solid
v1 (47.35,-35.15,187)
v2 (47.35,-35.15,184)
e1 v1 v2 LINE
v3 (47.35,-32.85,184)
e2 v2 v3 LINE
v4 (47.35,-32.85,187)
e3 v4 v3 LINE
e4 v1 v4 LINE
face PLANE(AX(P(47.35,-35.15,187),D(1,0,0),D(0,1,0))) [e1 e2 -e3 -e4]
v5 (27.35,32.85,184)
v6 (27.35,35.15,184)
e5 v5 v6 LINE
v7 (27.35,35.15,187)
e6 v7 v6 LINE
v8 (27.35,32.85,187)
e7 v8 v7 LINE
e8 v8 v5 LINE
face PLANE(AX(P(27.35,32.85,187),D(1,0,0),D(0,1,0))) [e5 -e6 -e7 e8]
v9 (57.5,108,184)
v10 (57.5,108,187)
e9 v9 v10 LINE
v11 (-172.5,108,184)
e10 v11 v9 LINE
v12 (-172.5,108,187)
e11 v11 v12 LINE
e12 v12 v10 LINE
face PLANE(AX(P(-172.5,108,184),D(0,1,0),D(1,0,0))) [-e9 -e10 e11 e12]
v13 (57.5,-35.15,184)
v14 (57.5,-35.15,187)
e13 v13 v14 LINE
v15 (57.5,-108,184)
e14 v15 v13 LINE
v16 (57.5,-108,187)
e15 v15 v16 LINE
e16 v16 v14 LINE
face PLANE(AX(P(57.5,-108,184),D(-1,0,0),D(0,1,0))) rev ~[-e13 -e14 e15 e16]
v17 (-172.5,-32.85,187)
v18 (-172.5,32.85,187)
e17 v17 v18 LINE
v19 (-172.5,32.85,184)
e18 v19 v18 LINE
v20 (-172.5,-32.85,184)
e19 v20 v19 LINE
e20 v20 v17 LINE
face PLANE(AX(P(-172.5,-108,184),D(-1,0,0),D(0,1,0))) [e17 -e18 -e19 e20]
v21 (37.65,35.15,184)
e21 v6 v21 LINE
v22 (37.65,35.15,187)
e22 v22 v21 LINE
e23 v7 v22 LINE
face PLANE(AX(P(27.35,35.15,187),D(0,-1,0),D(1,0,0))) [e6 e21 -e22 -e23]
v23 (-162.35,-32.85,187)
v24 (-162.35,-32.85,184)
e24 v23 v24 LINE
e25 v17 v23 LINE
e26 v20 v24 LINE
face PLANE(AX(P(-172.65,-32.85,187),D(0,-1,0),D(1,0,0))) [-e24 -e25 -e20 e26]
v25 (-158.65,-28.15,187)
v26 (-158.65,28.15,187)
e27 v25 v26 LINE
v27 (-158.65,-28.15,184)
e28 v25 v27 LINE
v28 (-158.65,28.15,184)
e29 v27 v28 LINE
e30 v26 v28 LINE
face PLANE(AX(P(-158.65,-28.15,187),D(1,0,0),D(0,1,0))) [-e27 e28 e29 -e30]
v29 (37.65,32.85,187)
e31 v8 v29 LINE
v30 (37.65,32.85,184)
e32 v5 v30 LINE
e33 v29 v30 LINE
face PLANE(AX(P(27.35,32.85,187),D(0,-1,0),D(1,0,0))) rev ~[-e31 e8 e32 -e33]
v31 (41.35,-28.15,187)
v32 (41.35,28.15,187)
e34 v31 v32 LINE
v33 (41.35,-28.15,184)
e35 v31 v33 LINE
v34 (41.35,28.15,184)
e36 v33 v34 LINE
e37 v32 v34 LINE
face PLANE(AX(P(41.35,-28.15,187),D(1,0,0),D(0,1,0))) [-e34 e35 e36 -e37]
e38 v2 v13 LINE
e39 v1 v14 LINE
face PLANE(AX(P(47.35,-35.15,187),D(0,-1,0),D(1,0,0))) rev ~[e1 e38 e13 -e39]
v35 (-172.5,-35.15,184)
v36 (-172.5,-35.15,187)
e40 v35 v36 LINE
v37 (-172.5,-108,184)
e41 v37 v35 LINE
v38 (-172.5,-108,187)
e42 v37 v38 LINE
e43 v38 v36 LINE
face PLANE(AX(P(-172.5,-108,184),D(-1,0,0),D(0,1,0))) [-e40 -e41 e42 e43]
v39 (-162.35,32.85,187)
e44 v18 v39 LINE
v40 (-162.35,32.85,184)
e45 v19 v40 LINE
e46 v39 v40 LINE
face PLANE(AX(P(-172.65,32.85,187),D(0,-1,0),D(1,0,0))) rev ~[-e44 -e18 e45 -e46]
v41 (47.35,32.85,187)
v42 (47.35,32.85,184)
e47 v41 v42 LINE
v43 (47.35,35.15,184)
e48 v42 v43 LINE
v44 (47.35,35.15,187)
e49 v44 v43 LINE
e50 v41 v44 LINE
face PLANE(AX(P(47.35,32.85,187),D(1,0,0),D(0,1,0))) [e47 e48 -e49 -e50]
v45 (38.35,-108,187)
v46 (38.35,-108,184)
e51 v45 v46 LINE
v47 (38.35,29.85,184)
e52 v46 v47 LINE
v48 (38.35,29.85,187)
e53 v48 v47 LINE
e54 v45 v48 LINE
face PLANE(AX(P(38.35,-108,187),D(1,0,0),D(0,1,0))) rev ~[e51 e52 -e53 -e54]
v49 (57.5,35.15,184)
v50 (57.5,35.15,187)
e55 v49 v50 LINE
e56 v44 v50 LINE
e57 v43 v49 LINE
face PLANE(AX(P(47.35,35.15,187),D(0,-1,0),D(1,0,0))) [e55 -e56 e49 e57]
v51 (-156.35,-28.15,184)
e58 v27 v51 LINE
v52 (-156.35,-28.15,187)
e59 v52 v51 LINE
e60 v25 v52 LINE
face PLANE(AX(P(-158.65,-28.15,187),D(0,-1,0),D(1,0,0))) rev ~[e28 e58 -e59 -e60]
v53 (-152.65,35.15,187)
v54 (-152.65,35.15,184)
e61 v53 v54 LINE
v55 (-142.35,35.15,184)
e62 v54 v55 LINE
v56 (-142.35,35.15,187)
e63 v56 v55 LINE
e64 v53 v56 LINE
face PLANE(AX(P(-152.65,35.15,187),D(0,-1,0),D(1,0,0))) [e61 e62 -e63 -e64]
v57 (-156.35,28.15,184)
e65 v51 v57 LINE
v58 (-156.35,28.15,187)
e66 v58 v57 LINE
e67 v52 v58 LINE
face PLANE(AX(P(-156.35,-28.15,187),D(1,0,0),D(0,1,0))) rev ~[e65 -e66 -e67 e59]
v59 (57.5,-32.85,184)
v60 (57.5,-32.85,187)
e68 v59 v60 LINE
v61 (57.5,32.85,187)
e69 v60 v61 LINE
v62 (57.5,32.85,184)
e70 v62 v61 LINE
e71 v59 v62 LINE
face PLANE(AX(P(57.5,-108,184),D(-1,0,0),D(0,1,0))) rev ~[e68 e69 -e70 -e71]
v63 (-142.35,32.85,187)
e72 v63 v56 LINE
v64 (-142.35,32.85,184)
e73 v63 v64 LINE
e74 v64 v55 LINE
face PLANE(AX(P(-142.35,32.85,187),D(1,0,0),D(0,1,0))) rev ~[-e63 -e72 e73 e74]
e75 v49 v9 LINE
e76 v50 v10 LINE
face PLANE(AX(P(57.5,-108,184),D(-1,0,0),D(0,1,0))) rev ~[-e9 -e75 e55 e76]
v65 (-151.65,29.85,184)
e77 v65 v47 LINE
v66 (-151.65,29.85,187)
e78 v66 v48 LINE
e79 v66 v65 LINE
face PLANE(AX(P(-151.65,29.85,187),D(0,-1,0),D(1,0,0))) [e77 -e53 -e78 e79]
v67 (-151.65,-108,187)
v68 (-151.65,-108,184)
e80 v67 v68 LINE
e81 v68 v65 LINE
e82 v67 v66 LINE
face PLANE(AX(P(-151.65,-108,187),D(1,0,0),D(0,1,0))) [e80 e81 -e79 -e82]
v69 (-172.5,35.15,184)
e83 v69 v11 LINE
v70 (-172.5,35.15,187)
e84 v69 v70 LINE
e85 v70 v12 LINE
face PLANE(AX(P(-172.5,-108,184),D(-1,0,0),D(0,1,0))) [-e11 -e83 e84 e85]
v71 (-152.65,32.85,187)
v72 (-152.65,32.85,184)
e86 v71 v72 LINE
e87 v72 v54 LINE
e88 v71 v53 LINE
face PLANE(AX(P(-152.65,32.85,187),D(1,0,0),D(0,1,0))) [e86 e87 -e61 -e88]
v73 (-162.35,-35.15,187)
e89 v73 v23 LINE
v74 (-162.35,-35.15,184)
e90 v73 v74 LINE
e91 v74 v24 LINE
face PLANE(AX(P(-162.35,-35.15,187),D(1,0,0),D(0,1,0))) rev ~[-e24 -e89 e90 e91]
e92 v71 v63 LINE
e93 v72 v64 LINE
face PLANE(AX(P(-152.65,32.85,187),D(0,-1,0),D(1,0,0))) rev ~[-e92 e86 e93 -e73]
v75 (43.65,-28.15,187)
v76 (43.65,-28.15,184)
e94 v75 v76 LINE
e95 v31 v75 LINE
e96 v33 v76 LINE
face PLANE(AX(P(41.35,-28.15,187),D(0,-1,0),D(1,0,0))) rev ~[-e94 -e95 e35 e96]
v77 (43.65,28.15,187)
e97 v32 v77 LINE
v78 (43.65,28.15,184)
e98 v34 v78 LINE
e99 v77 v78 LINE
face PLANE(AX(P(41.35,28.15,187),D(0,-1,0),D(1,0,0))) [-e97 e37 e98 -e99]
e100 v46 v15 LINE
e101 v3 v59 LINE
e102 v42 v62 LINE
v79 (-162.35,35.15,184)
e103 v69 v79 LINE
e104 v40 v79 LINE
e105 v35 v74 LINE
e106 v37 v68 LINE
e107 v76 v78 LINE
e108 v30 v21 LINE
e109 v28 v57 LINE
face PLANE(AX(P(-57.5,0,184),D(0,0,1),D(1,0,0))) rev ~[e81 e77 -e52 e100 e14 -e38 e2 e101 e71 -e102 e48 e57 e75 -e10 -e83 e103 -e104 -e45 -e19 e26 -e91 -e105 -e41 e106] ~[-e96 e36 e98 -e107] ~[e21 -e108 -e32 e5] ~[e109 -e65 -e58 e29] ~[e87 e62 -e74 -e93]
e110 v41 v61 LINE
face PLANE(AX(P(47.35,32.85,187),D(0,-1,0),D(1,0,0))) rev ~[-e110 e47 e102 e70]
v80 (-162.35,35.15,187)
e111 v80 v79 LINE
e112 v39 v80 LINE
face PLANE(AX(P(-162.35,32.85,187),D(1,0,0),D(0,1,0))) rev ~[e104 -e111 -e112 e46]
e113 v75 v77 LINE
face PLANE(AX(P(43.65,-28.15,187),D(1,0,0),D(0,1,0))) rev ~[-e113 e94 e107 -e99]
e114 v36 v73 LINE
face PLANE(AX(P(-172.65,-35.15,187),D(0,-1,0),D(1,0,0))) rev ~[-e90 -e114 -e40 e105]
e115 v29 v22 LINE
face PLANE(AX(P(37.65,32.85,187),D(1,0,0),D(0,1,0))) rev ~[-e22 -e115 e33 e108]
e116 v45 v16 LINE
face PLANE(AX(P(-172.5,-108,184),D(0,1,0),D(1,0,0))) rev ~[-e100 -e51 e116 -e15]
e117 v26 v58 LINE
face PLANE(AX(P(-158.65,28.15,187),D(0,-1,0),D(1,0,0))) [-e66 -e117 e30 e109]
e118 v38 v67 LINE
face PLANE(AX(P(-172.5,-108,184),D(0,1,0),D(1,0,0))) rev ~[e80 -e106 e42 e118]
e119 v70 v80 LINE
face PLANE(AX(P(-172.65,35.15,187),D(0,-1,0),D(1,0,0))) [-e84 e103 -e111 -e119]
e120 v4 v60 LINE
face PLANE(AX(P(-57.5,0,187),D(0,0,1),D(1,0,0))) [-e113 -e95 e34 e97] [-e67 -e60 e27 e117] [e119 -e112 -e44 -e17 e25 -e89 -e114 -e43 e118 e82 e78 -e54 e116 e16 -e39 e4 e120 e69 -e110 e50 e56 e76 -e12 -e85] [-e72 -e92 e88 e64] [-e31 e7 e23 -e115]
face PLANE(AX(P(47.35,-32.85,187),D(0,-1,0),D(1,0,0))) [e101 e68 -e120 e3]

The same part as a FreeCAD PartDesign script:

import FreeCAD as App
import Part
import Sketcher

V = App.Vector


def add_polygon(sketch, points):
    """Adds a closed chain of lines whose ends are joined by coincident constraints."""
    first, n = sketch.GeometryCount, len(points)
    for a, b in zip(points, points[1:] + points[:1]):
        sketch.addGeometry(Part.LineSegment(App.Vector(*a, 0), App.Vector(*b, 0)), False)
    for i in range(n):
        sketch.addConstraint(Sketcher.Constraint("Coincident", first + i, 2, first + (i + 1) % n, 1))

doc = App.newDocument("Part")
body = doc.addObject("PartDesign::Body", "Body")

# Sketch on XY plane
sketch1 = body.newObject("Sketcher::SketchObject", "Sketch")
sketch1.AttachmentSupport = (doc.getObject("XY_Plane"), [""])
sketch1.MapMode = "FlatFace"
sketch1.AttachmentOffset = App.Placement(V(0, 0, 184), App.Rotation())
add_polygon(sketch1, [(-172, 108), (-172, -108), (58, -108), (58, 108)])  # lines 0-3
sketch1.addConstraint([
    Sketcher.Constraint("Vertical", 0),
    Sketcher.Constraint("Horizontal", 1),
    Sketcher.Constraint("Vertical", 2),
    Sketcher.Constraint("Horizontal", 3),
    Sketcher.Constraint("DistanceX", 1, 1, 1, 2, 230.0),
    Sketcher.Constraint("DistanceY", 0, 2, 0, 1, 216.0),
    Sketcher.Constraint("DistanceY", 0, 2, -1, 1, 108.0),
    Sketcher.Constraint("DistanceX", 0, 2, -1, 1, 172.5),
])
pad1 = body.newObject("PartDesign::Pad", "Pad")
pad1.Profile = sketch1
pad1.Length = 3

# Sketch on XY plane
sketch2 = body.newObject("Sketcher::SketchObject", "Sketch001")
sketch2.AttachmentSupport = (doc.getObject("XY_Plane"), [""])
sketch2.MapMode = "FlatFace"
sketch2.AttachmentOffset = App.Placement(V(0, 0, 187), App.Rotation())
add_polygon(sketch2, [(-151.7, 29.9), (-151.7, -108), (38.4, -108), (38.4, 29.9)])  # lines 0-3
add_polygon(sketch2, [(27.4, 35.1), (27.4, 32.9), (37.6, 32.9), (37.6, 35.1)])  # lines 4-7
add_polygon(sketch2, [(47.4, 35.1), (47.4, 32.9), (57.6, 32.9), (57.6, 35.1)])  # lines 8-11
add_polygon(sketch2, [(41.4, 28.1), (41.4, -28.1), (43.6, -28.1), (43.6, 28.1)])  # lines 12-15
add_polygon(sketch2, [(47.4, -32.9), (47.4, -35.1), (57.6, -35.1), (57.6, -32.9)])  # lines 16-19
add_polygon(sketch2, [(-158.7, 28.1), (-158.7, -28.1), (-156.3, -28.1), (-156.3, 28.1)])  # lines 20-23
add_polygon(sketch2, [(-152.7, 35.1), (-152.7, 32.9), (-142.3, 32.9), (-142.3, 35.1)])  # lines 24-27
add_polygon(sketch2, [(-172.7, 35.1), (-172.7, 32.9), (-162.3, 32.9), (-162.3, 35.1)])  # lines 28-31
add_polygon(sketch2, [(-172.7, -32.9), (-172.7, -35.1), (-162.3, -35.1), (-162.3, -32.9)])  # lines 32-35
sketch2.addConstraint([
    Sketcher.Constraint("Vertical", 0),
    Sketcher.Constraint("Horizontal", 1),
    Sketcher.Constraint("Vertical", 2),
    Sketcher.Constraint("Horizontal", 3),
    Sketcher.Constraint("Vertical", 4),
    Sketcher.Constraint("Horizontal", 5),
    Sketcher.Constraint("Vertical", 6),
    Sketcher.Constraint("Horizontal", 7),
    Sketcher.Constraint("Vertical", 8),
    Sketcher.Constraint("Horizontal", 9),
    Sketcher.Constraint("Vertical", 10),
    Sketcher.Constraint("Horizontal", 11),
    Sketcher.Constraint("Vertical", 12),
    Sketcher.Constraint("Horizontal", 13),
    Sketcher.Constraint("Vertical", 14),
    Sketcher.Constraint("Horizontal", 15),
    Sketcher.Constraint("Vertical", 16),
    Sketcher.Constraint("Horizontal", 17),
    Sketcher.Constraint("Vertical", 18),
    Sketcher.Constraint("Horizontal", 19),
    Sketcher.Constraint("Vertical", 20),
    Sketcher.Constraint("Horizontal", 21),
    Sketcher.Constraint("Vertical", 22),
    Sketcher.Constraint("Horizontal", 23),
    Sketcher.Constraint("Vertical", 24),
    Sketcher.Constraint("Horizontal", 25),
    Sketcher.Constraint("Vertical", 26),
    Sketcher.Constraint("Horizontal", 27),
    Sketcher.Constraint("Vertical", 28),
    Sketcher.Constraint("Horizontal", 29),
    Sketcher.Constraint("Vertical", 30),
    Sketcher.Constraint("Horizontal", 31),
    Sketcher.Constraint("Vertical", 32),
    Sketcher.Constraint("Horizontal", 33),
    Sketcher.Constraint("Vertical", 34),
    Sketcher.Constraint("Horizontal", 35),
    Sketcher.Constraint("Symmetric", 11, 2, 16, 2, -1),
    Sketcher.Constraint("Symmetric", 9, 2, 18, 2, -1),
    Sketcher.Constraint("Symmetric", 31, 2, 32, 2, -1),
    Sketcher.Constraint("Symmetric", 29, 2, 34, 2, -1),
    Sketcher.Constraint("Horizontal", 5, 2, 8, 2),
    Sketcher.Constraint("Horizontal", 7, 2, 10, 2),
    Sketcher.Constraint("Horizontal", 13, 2, 20, 2),
    Sketcher.Constraint("Horizontal", 15, 2, 22, 2),
    Sketcher.Constraint("Horizontal", 9, 2, 24, 2),
    Sketcher.Constraint("Horizontal", 11, 2, 26, 2),
    Sketcher.Constraint("Horizontal", 25, 2, 28, 2),
    Sketcher.Constraint("Horizontal", 27, 2, 30, 2),
    Sketcher.Constraint("Equal", 7, 9),
    Sketcher.Constraint("Equal", 15, 21),
    Sketcher.Constraint("Equal", 19, 25),
    Sketcher.Constraint("Equal", 27, 29),
    Sketcher.Constraint("Equal", 23, 4),
    Sketcher.Constraint("DistanceX", 1, 1, 1, 2, 190.0),
    Sketcher.Constraint("DistanceX", 5, 1, 5, 2, 10.3),
    Sketcher.Constraint("DistanceX", 13, 1, 13, 2, 2.3),
    Sketcher.Constraint("DistanceY", 12, 2, 12, 1, 56.3),
    Sketcher.Constraint("DistanceY", 0, 2, -1, 1, 108.0),
    Sketcher.Constraint("DistanceX", 4, 2, 2, 2, 11.0),
    Sketcher.Constraint("DistanceY", 2, 2, 4, 2, 3.0),
    Sketcher.Constraint("DistanceX", 2, 2, 8, 2, 9.0),
    Sketcher.Constraint("DistanceX", 2, 2, 12, 2, 3.0),
    Sketcher.Constraint("DistanceY", 12, 2, 2, 2, 58.0),
    Sketcher.Constraint("DistanceY", 16, 2, 13, 2, 7.0),
    Sketcher.Constraint("DistanceX", 20, 2, 3, 2, 7.0),
    Sketcher.Constraint("DistanceX", 24, 2, 3, 2, 1.0),
    Sketcher.Constraint("DistanceX", 28, 2, 23, 2, 14.0),
    Sketcher.Constraint("DistanceX", 0, 2, -1, 1, 151.65),
])
pocket1 = body.newObject("PartDesign::Pocket", "Pocket")
pocket1.Profile = sketch2
pocket1.Length = 3

doc.recompute()
